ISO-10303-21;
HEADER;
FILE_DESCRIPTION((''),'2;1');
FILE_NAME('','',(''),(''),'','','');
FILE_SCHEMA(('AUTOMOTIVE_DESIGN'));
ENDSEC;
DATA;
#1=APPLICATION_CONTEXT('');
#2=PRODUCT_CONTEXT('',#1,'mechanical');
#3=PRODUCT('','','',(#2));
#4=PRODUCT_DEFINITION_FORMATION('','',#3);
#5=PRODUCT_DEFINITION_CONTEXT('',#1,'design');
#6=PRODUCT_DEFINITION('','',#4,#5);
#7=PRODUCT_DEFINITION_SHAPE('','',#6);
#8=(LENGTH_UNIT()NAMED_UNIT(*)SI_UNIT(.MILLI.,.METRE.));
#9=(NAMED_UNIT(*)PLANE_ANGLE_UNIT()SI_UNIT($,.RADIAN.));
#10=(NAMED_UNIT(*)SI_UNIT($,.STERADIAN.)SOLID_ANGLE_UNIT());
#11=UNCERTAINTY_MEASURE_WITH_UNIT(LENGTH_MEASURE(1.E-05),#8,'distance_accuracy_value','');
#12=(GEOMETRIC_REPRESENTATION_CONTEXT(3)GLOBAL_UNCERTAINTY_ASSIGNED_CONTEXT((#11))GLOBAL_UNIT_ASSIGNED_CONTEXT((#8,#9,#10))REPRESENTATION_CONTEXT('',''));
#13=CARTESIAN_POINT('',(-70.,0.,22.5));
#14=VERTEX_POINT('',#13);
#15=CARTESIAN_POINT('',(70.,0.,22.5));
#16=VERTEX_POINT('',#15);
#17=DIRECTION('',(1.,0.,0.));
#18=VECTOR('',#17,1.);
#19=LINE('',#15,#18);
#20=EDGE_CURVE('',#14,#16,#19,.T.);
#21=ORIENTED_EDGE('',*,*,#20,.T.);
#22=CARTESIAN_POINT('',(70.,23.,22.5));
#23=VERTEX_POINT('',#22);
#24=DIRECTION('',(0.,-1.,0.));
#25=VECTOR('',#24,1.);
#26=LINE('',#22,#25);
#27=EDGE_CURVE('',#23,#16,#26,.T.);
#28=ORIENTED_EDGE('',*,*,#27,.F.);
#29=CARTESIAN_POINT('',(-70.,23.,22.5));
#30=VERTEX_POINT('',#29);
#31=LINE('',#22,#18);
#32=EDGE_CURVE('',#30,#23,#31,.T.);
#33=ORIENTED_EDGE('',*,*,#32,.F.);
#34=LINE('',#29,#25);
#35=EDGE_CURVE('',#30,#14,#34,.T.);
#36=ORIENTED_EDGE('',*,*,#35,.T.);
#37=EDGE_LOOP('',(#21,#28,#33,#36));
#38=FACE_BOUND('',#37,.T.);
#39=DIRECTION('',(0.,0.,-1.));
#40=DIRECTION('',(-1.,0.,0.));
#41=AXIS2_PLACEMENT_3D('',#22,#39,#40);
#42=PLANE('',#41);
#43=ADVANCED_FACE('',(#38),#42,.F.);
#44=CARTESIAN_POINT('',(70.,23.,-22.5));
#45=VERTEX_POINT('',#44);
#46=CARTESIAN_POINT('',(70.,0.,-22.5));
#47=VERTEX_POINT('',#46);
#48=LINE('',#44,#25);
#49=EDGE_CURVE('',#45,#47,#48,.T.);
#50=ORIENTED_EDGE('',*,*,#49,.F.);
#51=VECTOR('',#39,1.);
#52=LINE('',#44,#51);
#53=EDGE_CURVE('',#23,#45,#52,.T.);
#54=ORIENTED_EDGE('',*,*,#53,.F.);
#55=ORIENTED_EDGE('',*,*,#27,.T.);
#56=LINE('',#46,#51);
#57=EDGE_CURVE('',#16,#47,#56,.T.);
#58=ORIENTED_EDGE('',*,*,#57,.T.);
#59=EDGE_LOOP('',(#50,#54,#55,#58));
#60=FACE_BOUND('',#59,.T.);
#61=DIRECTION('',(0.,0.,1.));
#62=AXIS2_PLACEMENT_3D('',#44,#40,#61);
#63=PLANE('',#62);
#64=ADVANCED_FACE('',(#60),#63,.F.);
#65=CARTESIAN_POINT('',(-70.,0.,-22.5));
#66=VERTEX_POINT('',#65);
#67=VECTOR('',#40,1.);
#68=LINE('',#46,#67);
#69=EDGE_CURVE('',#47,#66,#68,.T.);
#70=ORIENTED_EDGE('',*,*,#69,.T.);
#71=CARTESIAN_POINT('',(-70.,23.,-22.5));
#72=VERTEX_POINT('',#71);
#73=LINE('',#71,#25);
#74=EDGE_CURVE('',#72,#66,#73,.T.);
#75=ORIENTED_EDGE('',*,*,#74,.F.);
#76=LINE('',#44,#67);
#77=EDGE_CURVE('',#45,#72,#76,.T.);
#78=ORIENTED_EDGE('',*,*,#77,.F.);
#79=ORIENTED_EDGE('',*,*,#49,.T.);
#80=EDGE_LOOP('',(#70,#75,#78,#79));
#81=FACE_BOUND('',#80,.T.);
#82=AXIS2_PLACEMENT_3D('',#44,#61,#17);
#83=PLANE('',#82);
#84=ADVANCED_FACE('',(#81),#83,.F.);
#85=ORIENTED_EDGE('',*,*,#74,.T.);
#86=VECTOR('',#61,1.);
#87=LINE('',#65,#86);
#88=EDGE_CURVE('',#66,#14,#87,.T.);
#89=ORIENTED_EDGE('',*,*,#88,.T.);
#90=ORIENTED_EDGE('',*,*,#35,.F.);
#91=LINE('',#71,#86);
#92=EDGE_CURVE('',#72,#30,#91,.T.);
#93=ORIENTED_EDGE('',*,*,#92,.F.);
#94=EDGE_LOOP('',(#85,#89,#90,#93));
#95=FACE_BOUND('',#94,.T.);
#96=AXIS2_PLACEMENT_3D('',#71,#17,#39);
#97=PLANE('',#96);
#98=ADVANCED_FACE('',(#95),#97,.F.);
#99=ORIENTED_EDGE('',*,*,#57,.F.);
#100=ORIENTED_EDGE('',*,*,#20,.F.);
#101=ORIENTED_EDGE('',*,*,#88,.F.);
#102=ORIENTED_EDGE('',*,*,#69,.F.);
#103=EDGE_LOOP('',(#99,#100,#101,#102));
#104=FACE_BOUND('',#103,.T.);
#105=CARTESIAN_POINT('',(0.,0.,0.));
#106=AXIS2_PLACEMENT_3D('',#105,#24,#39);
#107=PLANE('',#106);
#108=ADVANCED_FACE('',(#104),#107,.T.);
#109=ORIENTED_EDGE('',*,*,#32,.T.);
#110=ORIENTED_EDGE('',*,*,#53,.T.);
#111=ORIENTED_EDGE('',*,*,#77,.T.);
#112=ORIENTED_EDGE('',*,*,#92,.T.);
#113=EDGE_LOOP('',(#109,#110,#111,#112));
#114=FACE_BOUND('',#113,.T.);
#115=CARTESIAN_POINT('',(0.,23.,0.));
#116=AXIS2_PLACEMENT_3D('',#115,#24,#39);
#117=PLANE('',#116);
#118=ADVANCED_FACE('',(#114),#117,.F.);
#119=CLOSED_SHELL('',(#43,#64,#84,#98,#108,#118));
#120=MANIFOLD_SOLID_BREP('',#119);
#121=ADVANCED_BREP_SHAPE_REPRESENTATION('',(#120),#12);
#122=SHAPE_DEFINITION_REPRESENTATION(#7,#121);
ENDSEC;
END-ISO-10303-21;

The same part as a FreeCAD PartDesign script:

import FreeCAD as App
import Part
import Sketcher

V = App.Vector
Q = App.Units.Quantity

doc = App.newDocument("Part")
body = doc.addObject("PartDesign::Body", "Body")

sketch1 = doc.addObject("Sketcher::SketchObject", "Sketch")
body.addObject(sketch1)
sketch1.AttachmentSupport = (doc.XZ_Plane, [""])
sketch1.MapMode = "FlatFace"
sketch1.addGeometry(Part.LineSegment(V(-70, -22, 0), V(-70, 22, 0)), False)
sketch1.addGeometry(Part.LineSegment(V(-70, 22, 0), V(70, 22, 0)), False)
sketch1.addGeometry(Part.LineSegment(V(70, 22, 0), V(70, -22, 0)), False)
sketch1.addGeometry(Part.LineSegment(V(70, -22, 0), V(-70, -22, 0)), False)
sketch1.addConstraint(Sketcher.Constraint("Coincident", 0, 2, 1, 1))
sketch1.addConstraint(Sketcher.Constraint("Coincident", 1, 2, 2, 1))
sketch1.addConstraint(Sketcher.Constraint("Coincident", 2, 2, 3, 1))
sketch1.addConstraint(Sketcher.Constraint("Coincident", 3, 2, 0, 1))
sketch1.addConstraint(Sketcher.Constraint("Vertical", 0))
sketch1.addConstraint(Sketcher.Constraint("Horizontal", 1))
sketch1.addConstraint(Sketcher.Constraint("Vertical", 2))
sketch1.addConstraint(Sketcher.Constraint("Horizontal", 3))
sketch1.addConstraint(Sketcher.Constraint("Symmetric", 0, 2, 2, 2, -1, 1))
sketch1.addConstraint(Sketcher.Constraint("DistanceX", 1, 1, 1, 2, Q("140 mm")))
sketch1.addConstraint(Sketcher.Constraint("DistanceY", 0, 1, 0, 2, Q("45 mm")))
pad1 = doc.addObject("PartDesign::Pad", "Pad")
body.addObject(pad1)
pad1.Profile = sketch1
pad1.Length = 23
pad1.Reversed = True

doc.recompute()
